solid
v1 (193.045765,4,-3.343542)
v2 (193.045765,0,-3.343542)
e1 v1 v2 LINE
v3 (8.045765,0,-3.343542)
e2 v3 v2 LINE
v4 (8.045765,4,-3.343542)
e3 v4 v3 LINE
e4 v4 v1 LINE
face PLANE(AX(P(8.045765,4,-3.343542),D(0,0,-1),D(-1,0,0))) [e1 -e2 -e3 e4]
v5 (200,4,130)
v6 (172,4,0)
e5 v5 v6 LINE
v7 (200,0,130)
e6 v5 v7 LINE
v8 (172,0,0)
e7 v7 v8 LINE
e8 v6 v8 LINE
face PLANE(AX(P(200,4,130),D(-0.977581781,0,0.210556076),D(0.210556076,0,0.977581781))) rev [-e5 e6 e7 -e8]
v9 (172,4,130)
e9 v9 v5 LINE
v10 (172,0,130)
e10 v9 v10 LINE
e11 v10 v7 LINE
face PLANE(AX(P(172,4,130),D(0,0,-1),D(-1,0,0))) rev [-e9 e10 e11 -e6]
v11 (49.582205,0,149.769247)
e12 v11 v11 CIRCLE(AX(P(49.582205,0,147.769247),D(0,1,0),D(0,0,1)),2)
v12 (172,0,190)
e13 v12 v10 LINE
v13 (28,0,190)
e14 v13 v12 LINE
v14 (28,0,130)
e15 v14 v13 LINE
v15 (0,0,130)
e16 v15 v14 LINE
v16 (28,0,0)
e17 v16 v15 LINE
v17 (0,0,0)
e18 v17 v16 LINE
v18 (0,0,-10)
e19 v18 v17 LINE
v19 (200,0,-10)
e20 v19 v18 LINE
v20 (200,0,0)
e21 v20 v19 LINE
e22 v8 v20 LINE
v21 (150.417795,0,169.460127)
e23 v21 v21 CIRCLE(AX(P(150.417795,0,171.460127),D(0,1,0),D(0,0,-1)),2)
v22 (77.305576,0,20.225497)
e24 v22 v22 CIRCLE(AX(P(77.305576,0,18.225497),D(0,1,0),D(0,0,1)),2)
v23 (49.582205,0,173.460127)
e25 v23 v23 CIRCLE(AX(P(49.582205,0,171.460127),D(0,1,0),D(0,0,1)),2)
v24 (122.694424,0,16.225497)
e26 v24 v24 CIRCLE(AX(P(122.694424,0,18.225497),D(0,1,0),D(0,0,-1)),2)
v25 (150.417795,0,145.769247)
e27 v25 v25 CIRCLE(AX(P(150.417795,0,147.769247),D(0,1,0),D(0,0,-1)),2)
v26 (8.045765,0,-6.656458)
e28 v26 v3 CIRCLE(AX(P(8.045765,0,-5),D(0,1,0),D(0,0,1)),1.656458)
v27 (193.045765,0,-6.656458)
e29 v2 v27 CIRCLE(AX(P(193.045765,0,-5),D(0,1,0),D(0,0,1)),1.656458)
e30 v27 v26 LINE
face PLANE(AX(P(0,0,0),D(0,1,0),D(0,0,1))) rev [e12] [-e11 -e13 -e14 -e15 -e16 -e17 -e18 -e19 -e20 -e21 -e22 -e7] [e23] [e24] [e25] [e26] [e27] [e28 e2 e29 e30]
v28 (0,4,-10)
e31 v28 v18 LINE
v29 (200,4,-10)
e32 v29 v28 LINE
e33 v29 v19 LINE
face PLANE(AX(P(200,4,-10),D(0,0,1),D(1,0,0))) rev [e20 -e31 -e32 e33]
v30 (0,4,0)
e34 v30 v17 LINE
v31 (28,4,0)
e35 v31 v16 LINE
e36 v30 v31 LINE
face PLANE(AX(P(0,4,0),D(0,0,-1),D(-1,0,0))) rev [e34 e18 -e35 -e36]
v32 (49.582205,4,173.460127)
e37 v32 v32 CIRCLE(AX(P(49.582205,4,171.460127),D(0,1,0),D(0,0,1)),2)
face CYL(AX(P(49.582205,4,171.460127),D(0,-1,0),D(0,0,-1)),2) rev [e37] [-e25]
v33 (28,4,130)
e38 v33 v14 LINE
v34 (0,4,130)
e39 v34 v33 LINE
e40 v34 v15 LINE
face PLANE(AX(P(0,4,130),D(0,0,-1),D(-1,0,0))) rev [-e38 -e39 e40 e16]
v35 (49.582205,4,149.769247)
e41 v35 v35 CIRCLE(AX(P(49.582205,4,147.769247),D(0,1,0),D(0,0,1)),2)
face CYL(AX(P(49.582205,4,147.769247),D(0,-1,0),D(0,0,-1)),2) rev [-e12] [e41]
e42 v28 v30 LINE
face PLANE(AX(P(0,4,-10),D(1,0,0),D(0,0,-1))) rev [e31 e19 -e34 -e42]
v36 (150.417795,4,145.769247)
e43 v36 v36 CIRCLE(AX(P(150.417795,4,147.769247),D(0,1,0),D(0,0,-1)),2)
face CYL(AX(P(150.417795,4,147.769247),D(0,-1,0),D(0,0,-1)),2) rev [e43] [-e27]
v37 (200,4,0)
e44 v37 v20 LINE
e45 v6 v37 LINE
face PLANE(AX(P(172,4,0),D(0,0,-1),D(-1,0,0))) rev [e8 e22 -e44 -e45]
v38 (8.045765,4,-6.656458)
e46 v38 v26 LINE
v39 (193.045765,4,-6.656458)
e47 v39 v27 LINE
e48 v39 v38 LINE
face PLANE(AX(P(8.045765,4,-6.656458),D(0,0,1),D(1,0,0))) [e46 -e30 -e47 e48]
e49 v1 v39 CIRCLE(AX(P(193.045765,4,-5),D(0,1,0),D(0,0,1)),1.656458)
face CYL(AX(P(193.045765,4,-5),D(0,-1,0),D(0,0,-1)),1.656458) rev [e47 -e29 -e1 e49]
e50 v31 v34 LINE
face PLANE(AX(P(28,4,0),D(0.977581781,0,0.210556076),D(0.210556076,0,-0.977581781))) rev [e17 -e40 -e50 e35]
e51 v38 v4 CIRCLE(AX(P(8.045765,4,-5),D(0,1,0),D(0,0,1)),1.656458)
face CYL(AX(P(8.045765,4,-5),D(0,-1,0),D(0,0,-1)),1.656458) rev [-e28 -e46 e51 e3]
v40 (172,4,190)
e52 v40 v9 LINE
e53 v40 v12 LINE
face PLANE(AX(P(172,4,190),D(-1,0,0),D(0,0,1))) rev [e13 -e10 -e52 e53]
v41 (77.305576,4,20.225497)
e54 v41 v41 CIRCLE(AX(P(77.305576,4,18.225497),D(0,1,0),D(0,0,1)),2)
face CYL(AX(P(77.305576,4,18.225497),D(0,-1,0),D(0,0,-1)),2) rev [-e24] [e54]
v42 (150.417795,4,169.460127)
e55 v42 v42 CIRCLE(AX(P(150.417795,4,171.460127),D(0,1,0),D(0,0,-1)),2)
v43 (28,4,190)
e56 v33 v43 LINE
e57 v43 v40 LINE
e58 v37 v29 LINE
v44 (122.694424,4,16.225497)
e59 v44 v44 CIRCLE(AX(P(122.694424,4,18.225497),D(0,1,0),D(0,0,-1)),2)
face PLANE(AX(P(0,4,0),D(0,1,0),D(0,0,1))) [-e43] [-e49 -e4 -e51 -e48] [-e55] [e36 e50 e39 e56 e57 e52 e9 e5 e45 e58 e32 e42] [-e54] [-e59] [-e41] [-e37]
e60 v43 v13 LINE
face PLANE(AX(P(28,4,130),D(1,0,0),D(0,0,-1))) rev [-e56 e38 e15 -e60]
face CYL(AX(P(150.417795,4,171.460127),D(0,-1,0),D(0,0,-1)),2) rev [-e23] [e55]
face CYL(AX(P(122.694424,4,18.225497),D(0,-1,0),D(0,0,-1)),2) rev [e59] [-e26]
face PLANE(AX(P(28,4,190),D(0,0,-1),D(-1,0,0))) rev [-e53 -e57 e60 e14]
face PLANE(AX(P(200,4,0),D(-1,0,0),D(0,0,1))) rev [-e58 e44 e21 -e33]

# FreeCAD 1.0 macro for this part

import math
import FreeCAD as App
import Part
import Sketcher

doc = App.newDocument("Part")
body = doc.addObject("PartDesign::Body", "Body")

# Sketch on XZ plane
sketch1 = body.newObject("Sketcher::SketchObject", "Sketch")
sketch1.AttachmentSupport = (doc.getObject("XZ_Plane"), [""])
sketch1.MapMode = "FlatFace"
sketch1.addGeometry(Part.LineSegment(App.Vector(0, 0, 0), App.Vector(28, 0, 0)), False)
sketch1.addGeometry(Part.LineSegment(App.Vector(28, 0, 0), App.Vector(0, 130, 0)), False)
sketch1.addGeometry(Part.LineSegment(App.Vector(0, 130, 0), App.Vector(28, 130, 0)), False)
sketch1.addGeometry(Part.LineSegment(App.Vector(28, 130, 0), App.Vector(28, 190, 0)), False)
sketch1.addGeometry(Part.LineSegment(App.Vector(28, 190, 0), App.Vector(172, 190, 0)), False)
sketch1.addGeometry(Part.LineSegment(App.Vector(172, 190, 0), App.Vector(172, 130, 0)), False)
sketch1.addGeometry(Part.LineSegment(App.Vector(172, 130, 0), App.Vector(200, 130, 0)), False)
sketch1.addGeometry(Part.LineSegment(App.Vector(200, 130, 0), App.Vector(172, 0, 0)), False)
sketch1.addGeometry(Part.LineSegment(App.Vector(172, 0, 0), App.Vector(200, 0, 0)), False)
sketch1.addGeometry(Part.LineSegment(App.Vector(200, 0, 0), App.Vector(200, -10, 0)), False)
sketch1.addGeometry(Part.LineSegment(App.Vector(200, -10, 0), App.Vector(0, -10, 0)), False)
sketch1.addGeometry(Part.LineSegment(App.Vector(0, -10, 0), App.Vector(0, 0, 0)), False)
sketch1.addGeometry(Part.Circle(App.Vector(49.6, 171.5, 0), App.Vector(0, 0, 1), 2), False)
sketch1.addGeometry(Part.Circle(App.Vector(49.6, 147.8, 0), App.Vector(0, 0, 1), 2), False)
sketch1.addGeometry(Part.Circle(App.Vector(150.4, 171.5, 0), App.Vector(0, 0, 1), 2), False)
sketch1.addGeometry(Part.Circle(App.Vector(150.4, 147.8, 0), App.Vector(0, 0, 1), 2), False)
sketch1.addGeometry(Part.Circle(App.Vector(77.3, 18.2, 0), App.Vector(0, 0, 1), 2), False)
sketch1.addGeometry(Part.Circle(App.Vector(122.7, 18.2, 0), App.Vector(0, 0, 1), 2), False)
sketch1.addGeometry(Part.ArcOfCircle(Part.Circle(App.Vector(8, -5, 0), App.Vector(0, 0, 1), 1.7), math.radians(90), math.radians(270)), False)
sketch1.addGeometry(Part.LineSegment(App.Vector(8, -6.7, 0), App.Vector(193, -6.7, 0)), False)
sketch1.addGeometry(Part.ArcOfCircle(Part.Circle(App.Vector(193, -5, 0), App.Vector(0, 0, 1), 1.7), math.radians(-90), math.radians(90)), False)
sketch1.addGeometry(Part.LineSegment(App.Vector(193, -3.3, 0), App.Vector(8, -3.3, 0)), False)
sketch1.addConstraint(Sketcher.Constraint("Coincident", 0, 2, 1, 1))
sketch1.addConstraint(Sketcher.Constraint("Coincident", 1, 2, 2, 1))
sketch1.addConstraint(Sketcher.Constraint("Coincident", 2, 2, 3, 1))
sketch1.addConstraint(Sketcher.Constraint("Coincident", 3, 2, 4, 1))
sketch1.addConstraint(Sketcher.Constraint("Coincident", 4, 2, 5, 1))
sketch1.addConstraint(Sketcher.Constraint("Coincident", 5, 2, 6, 1))
sketch1.addConstraint(Sketcher.Constraint("Coincident", 6, 2, 7, 1))
sketch1.addConstraint(Sketcher.Constraint("Coincident", 7, 2, 8, 1))
sketch1.addConstraint(Sketcher.Constraint("Coincident", 8, 2, 9, 1))
sketch1.addConstraint(Sketcher.Constraint("Coincident", 9, 2, 10, 1))
sketch1.addConstraint(Sketcher.Constraint("Coincident", 10, 2, 11, 1))
sketch1.addConstraint(Sketcher.Constraint("Coincident", 11, 2, 0, 1))
sketch1.addConstraint(Sketcher.Constraint("Tangent", 18, 2, 19, 1))
sketch1.addConstraint(Sketcher.Constraint("Tangent", 19, 2, 20, 1))
sketch1.addConstraint(Sketcher.Constraint("Tangent", 20, 2, 21, 1))
sketch1.addConstraint(Sketcher.Constraint("Tangent", 21, 2, 18, 1))
sketch1.addConstraint(Sketcher.Constraint("Horizontal", 0))
sketch1.addConstraint(Sketcher.Constraint("Horizontal", 2))
sketch1.addConstraint(Sketcher.Constraint("Vertical", 3))
sketch1.addConstraint(Sketcher.Constraint("Horizontal", 4))
sketch1.addConstraint(Sketcher.Constraint("Vertical", 5))
sketch1.addConstraint(Sketcher.Constraint("Horizontal", 6))
sketch1.addConstraint(Sketcher.Constraint("Horizontal", 8))
sketch1.addConstraint(Sketcher.Constraint("Vertical", 9))
sketch1.addConstraint(Sketcher.Constraint("Horizontal", 10))
sketch1.addConstraint(Sketcher.Constraint("Vertical", 11))
sketch1.addConstraint(Sketcher.Constraint("Horizontal", 19))
sketch1.addConstraint(Sketcher.Constraint("Horizontal", 21))
sketch1.addConstraint(Sketcher.Constraint("Coincident", 11, 2, -1, 1))
sketch1.addConstraint(Sketcher.Constraint("Equal", 12, 13))
sketch1.addConstraint(Sketcher.Constraint("Equal", 13, 14))
sketch1.addConstraint(Sketcher.Constraint("Equal", 14, 15))
sketch1.addConstraint(Sketcher.Constraint("Equal", 15, 16))
sketch1.addConstraint(Sketcher.Constraint("Equal", 16, 17))
sketch1.addConstraint(Sketcher.Constraint("PointOnObject", 1, 2, -2))
sketch1.addConstraint(Sketcher.Constraint("PointOnObject", 7, 2, -1))
sketch1.addConstraint(Sketcher.Constraint("Horizontal", 12, 3, 14, 3))
sketch1.addConstraint(Sketcher.Constraint("Horizontal", 13, 3, 15, 3))
sketch1.addConstraint(Sketcher.Constraint("Horizontal", 16, 3, 17, 3))
sketch1.addConstraint(Sketcher.Constraint("Horizontal", 2, 2, 5, 2))
sketch1.addConstraint(Sketcher.Constraint("Vertical", 12, 3, 13, 3))
sketch1.addConstraint(Sketcher.Constraint("Vertical", 14, 3, 15, 3))
sketch1.addConstraint(Sketcher.Constraint("Vertical", 0, 2, 2, 2))
sketch1.addConstraint(Sketcher.Constraint("Vertical", 5, 2, 7, 2))
sketch1.addConstraint(Sketcher.Constraint("Vertical", 6, 2, 8, 2))
sketch1.addConstraint(Sketcher.Constraint("Equal", 2, 6))
sketch1.addConstraint(Sketcher.Constraint("Diameter", 12, 4.0))
sketch1.addConstraint(Sketcher.Constraint("DistanceX", 0, 1, 0, 2, 28.0))
sketch1.addConstraint(Sketcher.Constraint("DistanceX", 4, 1, 4, 2, 144.0))
sketch1.addConstraint(Sketcher.Constraint("DistanceX", 19, 1, 19, 2, 185.0))
sketch1.addConstraint(Sketcher.Constraint("DistanceY", 3, 1, 3, 2, 60.0))
sketch1.addConstraint(Sketcher.Constraint("DistanceY", 9, 2, 9, 1, 10.0))
sketch1.addConstraint(Sketcher.Constraint("DistanceY", 18, 3, -1, 1, 5.0))
sketch1.addConstraint(Sketcher.Constraint("DistanceY", -1, 1, 1, 2, 130.0))
sketch1.addConstraint(Sketcher.Constraint("Radius", 18, 1.656458))
sketch1.addConstraint(Sketcher.Constraint("DistanceY", 13, 3, 12, 3, 23.69088))
sketch1.addConstraint(Sketcher.Constraint("DistanceX", 12, 3, 14, 3, 100.835589))
sketch1.addConstraint(Sketcher.Constraint("DistanceX", 13, 3, 16, 3, 27.72337))
sketch1.addConstraint(Sketcher.Constraint("DistanceY", 16, 3, 13, 3, 129.543749))
sketch1.addConstraint(Sketcher.Constraint("DistanceX", 16, 3, 17, 3, 45.388849))
sketch1.addConstraint(Sketcher.Constraint("DistanceX", 18, 3, 16, 3, 69.259811))
sketch1.addConstraint(Sketcher.Constraint("DistanceX", -1, 1, 12, 3, 49.582205))
sketch1.addConstraint(Sketcher.Constraint("DistanceY", -1, 1, 12, 3, 171.460127))
pad1 = body.newObject("PartDesign::Pad", "Pad")
pad1.Profile = sketch1
pad1.Length = 4
pad1.Reversed = True

doc.recompute()
